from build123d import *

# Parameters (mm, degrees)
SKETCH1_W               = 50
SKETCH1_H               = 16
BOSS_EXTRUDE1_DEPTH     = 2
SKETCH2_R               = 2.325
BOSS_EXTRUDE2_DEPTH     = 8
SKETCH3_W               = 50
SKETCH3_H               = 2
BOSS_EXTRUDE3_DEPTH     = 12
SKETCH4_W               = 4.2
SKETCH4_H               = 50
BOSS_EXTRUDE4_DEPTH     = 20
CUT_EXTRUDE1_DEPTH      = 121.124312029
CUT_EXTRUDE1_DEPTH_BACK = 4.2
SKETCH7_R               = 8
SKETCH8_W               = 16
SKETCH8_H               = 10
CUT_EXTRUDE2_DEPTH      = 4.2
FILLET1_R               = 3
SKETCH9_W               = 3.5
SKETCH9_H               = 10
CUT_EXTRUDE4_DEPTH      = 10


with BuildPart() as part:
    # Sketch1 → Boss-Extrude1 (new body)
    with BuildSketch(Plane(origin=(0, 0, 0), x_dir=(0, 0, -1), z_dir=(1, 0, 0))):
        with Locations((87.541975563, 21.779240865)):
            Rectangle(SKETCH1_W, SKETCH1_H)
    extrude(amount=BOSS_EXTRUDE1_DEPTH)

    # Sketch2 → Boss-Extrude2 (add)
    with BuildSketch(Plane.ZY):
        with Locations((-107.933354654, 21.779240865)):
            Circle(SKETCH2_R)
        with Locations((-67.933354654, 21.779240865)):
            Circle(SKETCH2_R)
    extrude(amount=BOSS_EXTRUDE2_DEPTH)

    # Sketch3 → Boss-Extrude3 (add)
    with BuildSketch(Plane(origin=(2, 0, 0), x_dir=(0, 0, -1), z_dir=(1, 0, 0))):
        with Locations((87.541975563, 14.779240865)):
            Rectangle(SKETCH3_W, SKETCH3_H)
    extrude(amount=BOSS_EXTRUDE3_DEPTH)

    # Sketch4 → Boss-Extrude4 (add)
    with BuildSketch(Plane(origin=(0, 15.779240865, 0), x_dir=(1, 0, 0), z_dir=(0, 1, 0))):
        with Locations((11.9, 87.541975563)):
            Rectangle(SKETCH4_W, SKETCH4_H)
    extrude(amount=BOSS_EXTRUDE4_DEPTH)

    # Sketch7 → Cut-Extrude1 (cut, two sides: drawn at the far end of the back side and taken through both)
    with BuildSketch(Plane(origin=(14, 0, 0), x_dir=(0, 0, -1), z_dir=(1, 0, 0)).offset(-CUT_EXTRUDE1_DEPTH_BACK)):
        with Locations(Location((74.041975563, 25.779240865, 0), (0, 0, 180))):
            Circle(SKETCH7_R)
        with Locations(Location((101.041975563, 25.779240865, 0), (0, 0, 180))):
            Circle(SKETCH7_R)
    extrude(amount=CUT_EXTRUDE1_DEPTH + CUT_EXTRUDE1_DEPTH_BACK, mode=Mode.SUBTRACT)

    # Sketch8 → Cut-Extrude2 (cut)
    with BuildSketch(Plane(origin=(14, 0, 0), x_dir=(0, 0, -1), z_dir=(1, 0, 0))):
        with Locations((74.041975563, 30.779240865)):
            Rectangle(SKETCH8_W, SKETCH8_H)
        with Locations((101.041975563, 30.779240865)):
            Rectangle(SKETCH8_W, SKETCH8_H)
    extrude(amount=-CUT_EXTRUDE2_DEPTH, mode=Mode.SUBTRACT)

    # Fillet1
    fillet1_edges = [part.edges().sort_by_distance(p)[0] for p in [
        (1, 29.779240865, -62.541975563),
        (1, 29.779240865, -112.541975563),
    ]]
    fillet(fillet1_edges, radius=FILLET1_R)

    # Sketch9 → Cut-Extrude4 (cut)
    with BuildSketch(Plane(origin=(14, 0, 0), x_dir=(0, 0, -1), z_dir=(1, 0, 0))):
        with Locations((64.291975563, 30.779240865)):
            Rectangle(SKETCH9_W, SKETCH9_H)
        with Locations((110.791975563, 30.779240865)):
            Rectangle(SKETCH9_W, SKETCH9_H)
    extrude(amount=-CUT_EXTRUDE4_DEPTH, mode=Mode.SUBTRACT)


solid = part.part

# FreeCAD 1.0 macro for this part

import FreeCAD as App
import Part
import Sketcher

V = App.Vector
Q = App.Units.Quantity


def edges_at(feature, points):
    """Names of the edges that pass closest to the given points."""
    edges = feature.Shape.Edges
    near = lambda p: min(range(len(edges)), key=lambda i: edges[i].distToShape(Part.Vertex(*p))[0])
    return sorted({f"Edge{near(p) + 1}" for p in points})


def add_polygon(sketch, points):
    """Adds a closed chain of lines whose ends are joined by coincident constraints."""
    first, n = sketch.GeometryCount, len(points)
    for a, b in zip(points, points[1:] + points[:1]):
        sketch.addGeometry(Part.LineSegment(App.Vector(*a, 0), App.Vector(*b, 0)), False)
    for i in range(n):
        sketch.addConstraint(Sketcher.Constraint("Coincident", first + i, 2, first + (i + 1) % n, 1))

doc = App.newDocument("Part")
body = doc.addObject("PartDesign::Body", "Body")

# Sketch on YZ plane
sketch1 = doc.addObject("Sketcher::SketchObject", "Sketch")
body.addObject(sketch1)
sketch1.AttachmentSupport = (doc.YZ_Plane, [""])
sketch1.MapMode = "FlatFace"
add_polygon(sketch1, [(30, -63), (14, -63), (14, -113), (30, -113)])  # lines 0-3
sketch1.addConstraint([
    Sketcher.Constraint("Horizontal", 0),
    Sketcher.Constraint("Vertical", 1),
    Sketcher.Constraint("Horizontal", 2),
    Sketcher.Constraint("Vertical", 3),
    Sketcher.Constraint("DistanceX", 0, 2, 0, 1, Q("16 mm")),
    Sketcher.Constraint("DistanceY", 1, 2, 1, 1, Q("50 mm")),
    Sketcher.Constraint("DistanceX", -1, 1, 0, 2, Q("13.779241 mm")),
    Sketcher.Constraint("DistanceY", 0, 2, -1, 1, Q("62.541976 mm")),
])
pad1 = doc.addObject("PartDesign::Pad", "Pad")
body.addObject(pad1)
pad1.Profile = sketch1
pad1.Length = 2

# Sketch on YZ plane
sketch2 = doc.addObject("Sketcher::SketchObject", "Sketch001")
body.addObject(sketch2)
sketch2.AttachmentSupport = (doc.YZ_Plane, [""])
sketch2.MapMode = "FlatFace"
sketch2.addGeometry([
    Part.Circle(V(21.8, -107.9, 0), V(0, 0, 1), 2.3),
    Part.Circle(V(21.8, -67.9, 0), V(0, 0, 1), 2.3),
], False)
sketch2.addConstraint([
    Sketcher.Constraint("Equal", 0, 1),
    Sketcher.Constraint("Vertical", 0, 3, 1, 3),
    Sketcher.Constraint("Diameter", 0, Q("4.65 mm")),
    Sketcher.Constraint("DistanceY", 0, 3, 1, 3, Q("40 mm")),
    Sketcher.Constraint("DistanceX", -1, 1, 0, 3, Q("21.779241 mm")),
    Sketcher.Constraint("DistanceY", 0, 3, -1, 1, Q("107.933355 mm")),
])
pad2 = doc.addObject("PartDesign::Pad", "Pad001")
body.addObject(pad2)
pad2.Profile = sketch2
pad2.Length = 8
pad2.Reversed = True

# Sketch on YZ plane
sketch3 = doc.addObject("Sketcher::SketchObject", "Sketch002")
body.addObject(sketch3)
sketch3.AttachmentSupport = (doc.YZ_Plane, [""])
sketch3.MapMode = "FlatFace"
sketch3.AttachmentOffset = App.Placement(V(0, 0, 2), App.Rotation())
add_polygon(sketch3, [(15.8, -62.5), (13.8, -62.5), (13.8, -112.5), (15.8, -112.5)])  # lines 0-3
sketch3.addConstraint([
    Sketcher.Constraint("Horizontal", 0),
    Sketcher.Constraint("Vertical", 1),
    Sketcher.Constraint("Horizontal", 2),
    Sketcher.Constraint("Vertical", 3),
    Sketcher.Constraint("DistanceX", 0, 2, 0, 1, Q("2 mm")),
    Sketcher.Constraint("DistanceY", 1, 2, 1, 1, Q("50 mm")),
    Sketcher.Constraint("DistanceX", -1, 1, 0, 2, Q("13.779241 mm")),
    Sketcher.Constraint("DistanceY", 0, 2, -1, 1, Q("62.541976 mm")),
])
pad3 = doc.addObject("PartDesign::Pad", "Pad002")
body.addObject(pad3)
pad3.Profile = sketch3
pad3.Length = 12

# Sketch on XZ plane
sketch4 = doc.addObject("Sketcher::SketchObject", "Sketch003")
body.addObject(sketch4)
sketch4.AttachmentSupport = (doc.XZ_Plane, [""])
sketch4.MapMode = "FlatFace"
sketch4.AttachmentOffset = App.Placement(V(0, 0, -15.779241), App.Rotation())
add_polygon(sketch4, [(9.8, -112.5), (9.8, -62.5), (14, -62.5), (14, -112.5)])  # lines 0-3
sketch4.addConstraint([
    Sketcher.Constraint("Vertical", 0),
    Sketcher.Constraint("Horizontal", 1),
    Sketcher.Constraint("Vertical", 2),
    Sketcher.Constraint("Horizontal", 3),
    Sketcher.Constraint("DistanceY", 0, 1, 0, 2, Q("50 mm")),
    Sketcher.Constraint("DistanceX", 1, 1, 1, 2, Q("4.2 mm")),
    Sketcher.Constraint("DistanceX", -1, 1, 1, 2, Q("14 mm")),
    Sketcher.Constraint("DistanceY", 0, 2, -1, 1, Q("62.541976 mm")),
])
pad4 = doc.addObject("PartDesign::Pad", "Pad003")
body.addObject(pad4)
pad4.Profile = sketch4
pad4.Length = 20
pad4.Reversed = True

# Sketch on YZ plane
sketch5 = doc.addObject("Sketcher::SketchObject", "Sketch004")
body.addObject(sketch5)
sketch5.AttachmentSupport = (doc.YZ_Plane, [""])
sketch5.MapMode = "FlatFace"
sketch5.AttachmentOffset = App.Placement(V(0, 0, 14), App.Rotation())
sketch5.addGeometry([
    Part.Circle(V(26, -74, 0), V(0, 0, 1), 8),
    Part.Circle(V(26, -101, 0), V(0, 0, 1), 8),
], False)
sketch5.addConstraint([
    Sketcher.Constraint("Equal", 0, 1),
    Sketcher.Constraint("Vertical", 0, 3, 1, 3),
    Sketcher.Constraint("Diameter", 0, Q("16 mm")),
    Sketcher.Constraint("DistanceY", 1, 3, 0, 3, Q("27 mm")),
    Sketcher.Constraint("DistanceX", -1, 1, 0, 3, Q("25.779241 mm")),
    Sketcher.Constraint("DistanceY", 0, 3, -1, 1, Q("74.041976 mm")),
])
pocket1 = doc.addObject("PartDesign::Pocket", "Pocket")
body.addObject(pocket1)
pocket1.Profile = sketch5
pocket1.Type = "TwoLengths"
pocket1.Length = 121.124312
pocket1.Length2 = 4.2
pocket1.Reversed = True

# Sketch on YZ plane
sketch6 = doc.addObject("Sketcher::SketchObject", "Sketch005")
body.addObject(sketch6)
sketch6.AttachmentSupport = (doc.YZ_Plane, [""])
sketch6.MapMode = "FlatFace"
sketch6.AttachmentOffset = App.Placement(V(0, 0, 14), App.Rotation())
add_polygon(sketch6, [(36, -66), (26, -66), (26, -82), (36, -82)])  # lines 0-3
add_polygon(sketch6, [(36, -93), (26, -93), (26, -109), (36, -109)])  # lines 4-7
sketch6.addConstraint([
    Sketcher.Constraint("Horizontal", 0),
    Sketcher.Constraint("Vertical", 1),
    Sketcher.Constraint("Horizontal", 2),
    Sketcher.Constraint("Vertical", 3),
    Sketcher.Constraint("Horizontal", 4),
    Sketcher.Constraint("Vertical", 5),
    Sketcher.Constraint("Horizontal", 6),
    Sketcher.Constraint("Vertical", 7),
    Sketcher.Constraint("Vertical", 1, 2, 4, 2),
    Sketcher.Constraint("Vertical", 3, 2, 6, 2),
    Sketcher.Constraint("Equal", 3, 5),
    Sketcher.Constraint("DistanceX", 0, 2, 0, 1, Q("10 mm")),
    Sketcher.Constraint("DistanceY", 1, 2, 1, 1, Q("16 mm")),
    Sketcher.Constraint("DistanceY", 4, 2, 1, 2, Q("11 mm")),
    Sketcher.Constraint("DistanceX", -1, 1, 0, 2, Q("25.779241 mm")),
    Sketcher.Constraint("DistanceY", 0, 2, -1, 1, Q("66.041976 mm")),
])
pocket2 = doc.addObject("PartDesign::Pocket", "Pocket001")
body.addObject(pocket2)
pocket2.Profile = sketch6
pocket2.Length = 4.2
doc.recompute()

fillet = doc.addObject("PartDesign::Fillet", "Fillet")
body.addObject(fillet)
fillet.Base = (pocket2, edges_at(pocket2, [(1, 29.779, -62.542), (1, 29.779, -112.542)]))
fillet.Radius = 3

# Sketch on YZ plane
sketch7 = doc.addObject("Sketcher::SketchObject", "Sketch006")
body.addObject(sketch7)
sketch7.AttachmentSupport = (doc.YZ_Plane, [""])
sketch7.MapMode = "FlatFace"
sketch7.AttachmentOffset = App.Placement(V(0, 0, 14), App.Rotation())
add_polygon(sketch7, [(35.8, -62.5), (25.8, -62.5), (25.8, -66), (35.8, -66)])  # lines 0-3
add_polygon(sketch7, [(35.8, -109), (25.8, -109), (25.8, -112.5), (35.8, -112.5)])  # lines 4-7
sketch7.addConstraint([
    Sketcher.Constraint("Horizontal", 0),
    Sketcher.Constraint("Vertical", 1),
    Sketcher.Constraint("Horizontal", 2),
    Sketcher.Constraint("Vertical", 3),
    Sketcher.Constraint("Horizontal", 4),
    Sketcher.Constraint("Vertical", 5),
    Sketcher.Constraint("Horizontal", 6),
    Sketcher.Constraint("Vertical", 7),
    Sketcher.Constraint("Vertical", 1, 2, 4, 2),
    Sketcher.Constraint("Vertical", 3, 2, 6, 2),
    Sketcher.Constraint("Equal", 3, 5),
    Sketcher.Constraint("DistanceX", 0, 2, 0, 1, Q("10 mm")),
    Sketcher.Constraint("DistanceY", 1, 2, 1, 1, Q("3.5 mm")),
    Sketcher.Constraint("DistanceY", 4, 2, 1, 2, Q("43 mm")),
    Sketcher.Constraint("DistanceX", -1, 1, 0, 2, Q("25.779241 mm")),
    Sketcher.Constraint("DistanceY", 0, 2, -1, 1, Q("62.541976 mm")),
])
pocket3 = doc.addObject("PartDesign::Pocket", "Pocket002")
body.addObject(pocket3)
pocket3.Profile = sketch7
pocket3.Length = 10

doc.recompute()
